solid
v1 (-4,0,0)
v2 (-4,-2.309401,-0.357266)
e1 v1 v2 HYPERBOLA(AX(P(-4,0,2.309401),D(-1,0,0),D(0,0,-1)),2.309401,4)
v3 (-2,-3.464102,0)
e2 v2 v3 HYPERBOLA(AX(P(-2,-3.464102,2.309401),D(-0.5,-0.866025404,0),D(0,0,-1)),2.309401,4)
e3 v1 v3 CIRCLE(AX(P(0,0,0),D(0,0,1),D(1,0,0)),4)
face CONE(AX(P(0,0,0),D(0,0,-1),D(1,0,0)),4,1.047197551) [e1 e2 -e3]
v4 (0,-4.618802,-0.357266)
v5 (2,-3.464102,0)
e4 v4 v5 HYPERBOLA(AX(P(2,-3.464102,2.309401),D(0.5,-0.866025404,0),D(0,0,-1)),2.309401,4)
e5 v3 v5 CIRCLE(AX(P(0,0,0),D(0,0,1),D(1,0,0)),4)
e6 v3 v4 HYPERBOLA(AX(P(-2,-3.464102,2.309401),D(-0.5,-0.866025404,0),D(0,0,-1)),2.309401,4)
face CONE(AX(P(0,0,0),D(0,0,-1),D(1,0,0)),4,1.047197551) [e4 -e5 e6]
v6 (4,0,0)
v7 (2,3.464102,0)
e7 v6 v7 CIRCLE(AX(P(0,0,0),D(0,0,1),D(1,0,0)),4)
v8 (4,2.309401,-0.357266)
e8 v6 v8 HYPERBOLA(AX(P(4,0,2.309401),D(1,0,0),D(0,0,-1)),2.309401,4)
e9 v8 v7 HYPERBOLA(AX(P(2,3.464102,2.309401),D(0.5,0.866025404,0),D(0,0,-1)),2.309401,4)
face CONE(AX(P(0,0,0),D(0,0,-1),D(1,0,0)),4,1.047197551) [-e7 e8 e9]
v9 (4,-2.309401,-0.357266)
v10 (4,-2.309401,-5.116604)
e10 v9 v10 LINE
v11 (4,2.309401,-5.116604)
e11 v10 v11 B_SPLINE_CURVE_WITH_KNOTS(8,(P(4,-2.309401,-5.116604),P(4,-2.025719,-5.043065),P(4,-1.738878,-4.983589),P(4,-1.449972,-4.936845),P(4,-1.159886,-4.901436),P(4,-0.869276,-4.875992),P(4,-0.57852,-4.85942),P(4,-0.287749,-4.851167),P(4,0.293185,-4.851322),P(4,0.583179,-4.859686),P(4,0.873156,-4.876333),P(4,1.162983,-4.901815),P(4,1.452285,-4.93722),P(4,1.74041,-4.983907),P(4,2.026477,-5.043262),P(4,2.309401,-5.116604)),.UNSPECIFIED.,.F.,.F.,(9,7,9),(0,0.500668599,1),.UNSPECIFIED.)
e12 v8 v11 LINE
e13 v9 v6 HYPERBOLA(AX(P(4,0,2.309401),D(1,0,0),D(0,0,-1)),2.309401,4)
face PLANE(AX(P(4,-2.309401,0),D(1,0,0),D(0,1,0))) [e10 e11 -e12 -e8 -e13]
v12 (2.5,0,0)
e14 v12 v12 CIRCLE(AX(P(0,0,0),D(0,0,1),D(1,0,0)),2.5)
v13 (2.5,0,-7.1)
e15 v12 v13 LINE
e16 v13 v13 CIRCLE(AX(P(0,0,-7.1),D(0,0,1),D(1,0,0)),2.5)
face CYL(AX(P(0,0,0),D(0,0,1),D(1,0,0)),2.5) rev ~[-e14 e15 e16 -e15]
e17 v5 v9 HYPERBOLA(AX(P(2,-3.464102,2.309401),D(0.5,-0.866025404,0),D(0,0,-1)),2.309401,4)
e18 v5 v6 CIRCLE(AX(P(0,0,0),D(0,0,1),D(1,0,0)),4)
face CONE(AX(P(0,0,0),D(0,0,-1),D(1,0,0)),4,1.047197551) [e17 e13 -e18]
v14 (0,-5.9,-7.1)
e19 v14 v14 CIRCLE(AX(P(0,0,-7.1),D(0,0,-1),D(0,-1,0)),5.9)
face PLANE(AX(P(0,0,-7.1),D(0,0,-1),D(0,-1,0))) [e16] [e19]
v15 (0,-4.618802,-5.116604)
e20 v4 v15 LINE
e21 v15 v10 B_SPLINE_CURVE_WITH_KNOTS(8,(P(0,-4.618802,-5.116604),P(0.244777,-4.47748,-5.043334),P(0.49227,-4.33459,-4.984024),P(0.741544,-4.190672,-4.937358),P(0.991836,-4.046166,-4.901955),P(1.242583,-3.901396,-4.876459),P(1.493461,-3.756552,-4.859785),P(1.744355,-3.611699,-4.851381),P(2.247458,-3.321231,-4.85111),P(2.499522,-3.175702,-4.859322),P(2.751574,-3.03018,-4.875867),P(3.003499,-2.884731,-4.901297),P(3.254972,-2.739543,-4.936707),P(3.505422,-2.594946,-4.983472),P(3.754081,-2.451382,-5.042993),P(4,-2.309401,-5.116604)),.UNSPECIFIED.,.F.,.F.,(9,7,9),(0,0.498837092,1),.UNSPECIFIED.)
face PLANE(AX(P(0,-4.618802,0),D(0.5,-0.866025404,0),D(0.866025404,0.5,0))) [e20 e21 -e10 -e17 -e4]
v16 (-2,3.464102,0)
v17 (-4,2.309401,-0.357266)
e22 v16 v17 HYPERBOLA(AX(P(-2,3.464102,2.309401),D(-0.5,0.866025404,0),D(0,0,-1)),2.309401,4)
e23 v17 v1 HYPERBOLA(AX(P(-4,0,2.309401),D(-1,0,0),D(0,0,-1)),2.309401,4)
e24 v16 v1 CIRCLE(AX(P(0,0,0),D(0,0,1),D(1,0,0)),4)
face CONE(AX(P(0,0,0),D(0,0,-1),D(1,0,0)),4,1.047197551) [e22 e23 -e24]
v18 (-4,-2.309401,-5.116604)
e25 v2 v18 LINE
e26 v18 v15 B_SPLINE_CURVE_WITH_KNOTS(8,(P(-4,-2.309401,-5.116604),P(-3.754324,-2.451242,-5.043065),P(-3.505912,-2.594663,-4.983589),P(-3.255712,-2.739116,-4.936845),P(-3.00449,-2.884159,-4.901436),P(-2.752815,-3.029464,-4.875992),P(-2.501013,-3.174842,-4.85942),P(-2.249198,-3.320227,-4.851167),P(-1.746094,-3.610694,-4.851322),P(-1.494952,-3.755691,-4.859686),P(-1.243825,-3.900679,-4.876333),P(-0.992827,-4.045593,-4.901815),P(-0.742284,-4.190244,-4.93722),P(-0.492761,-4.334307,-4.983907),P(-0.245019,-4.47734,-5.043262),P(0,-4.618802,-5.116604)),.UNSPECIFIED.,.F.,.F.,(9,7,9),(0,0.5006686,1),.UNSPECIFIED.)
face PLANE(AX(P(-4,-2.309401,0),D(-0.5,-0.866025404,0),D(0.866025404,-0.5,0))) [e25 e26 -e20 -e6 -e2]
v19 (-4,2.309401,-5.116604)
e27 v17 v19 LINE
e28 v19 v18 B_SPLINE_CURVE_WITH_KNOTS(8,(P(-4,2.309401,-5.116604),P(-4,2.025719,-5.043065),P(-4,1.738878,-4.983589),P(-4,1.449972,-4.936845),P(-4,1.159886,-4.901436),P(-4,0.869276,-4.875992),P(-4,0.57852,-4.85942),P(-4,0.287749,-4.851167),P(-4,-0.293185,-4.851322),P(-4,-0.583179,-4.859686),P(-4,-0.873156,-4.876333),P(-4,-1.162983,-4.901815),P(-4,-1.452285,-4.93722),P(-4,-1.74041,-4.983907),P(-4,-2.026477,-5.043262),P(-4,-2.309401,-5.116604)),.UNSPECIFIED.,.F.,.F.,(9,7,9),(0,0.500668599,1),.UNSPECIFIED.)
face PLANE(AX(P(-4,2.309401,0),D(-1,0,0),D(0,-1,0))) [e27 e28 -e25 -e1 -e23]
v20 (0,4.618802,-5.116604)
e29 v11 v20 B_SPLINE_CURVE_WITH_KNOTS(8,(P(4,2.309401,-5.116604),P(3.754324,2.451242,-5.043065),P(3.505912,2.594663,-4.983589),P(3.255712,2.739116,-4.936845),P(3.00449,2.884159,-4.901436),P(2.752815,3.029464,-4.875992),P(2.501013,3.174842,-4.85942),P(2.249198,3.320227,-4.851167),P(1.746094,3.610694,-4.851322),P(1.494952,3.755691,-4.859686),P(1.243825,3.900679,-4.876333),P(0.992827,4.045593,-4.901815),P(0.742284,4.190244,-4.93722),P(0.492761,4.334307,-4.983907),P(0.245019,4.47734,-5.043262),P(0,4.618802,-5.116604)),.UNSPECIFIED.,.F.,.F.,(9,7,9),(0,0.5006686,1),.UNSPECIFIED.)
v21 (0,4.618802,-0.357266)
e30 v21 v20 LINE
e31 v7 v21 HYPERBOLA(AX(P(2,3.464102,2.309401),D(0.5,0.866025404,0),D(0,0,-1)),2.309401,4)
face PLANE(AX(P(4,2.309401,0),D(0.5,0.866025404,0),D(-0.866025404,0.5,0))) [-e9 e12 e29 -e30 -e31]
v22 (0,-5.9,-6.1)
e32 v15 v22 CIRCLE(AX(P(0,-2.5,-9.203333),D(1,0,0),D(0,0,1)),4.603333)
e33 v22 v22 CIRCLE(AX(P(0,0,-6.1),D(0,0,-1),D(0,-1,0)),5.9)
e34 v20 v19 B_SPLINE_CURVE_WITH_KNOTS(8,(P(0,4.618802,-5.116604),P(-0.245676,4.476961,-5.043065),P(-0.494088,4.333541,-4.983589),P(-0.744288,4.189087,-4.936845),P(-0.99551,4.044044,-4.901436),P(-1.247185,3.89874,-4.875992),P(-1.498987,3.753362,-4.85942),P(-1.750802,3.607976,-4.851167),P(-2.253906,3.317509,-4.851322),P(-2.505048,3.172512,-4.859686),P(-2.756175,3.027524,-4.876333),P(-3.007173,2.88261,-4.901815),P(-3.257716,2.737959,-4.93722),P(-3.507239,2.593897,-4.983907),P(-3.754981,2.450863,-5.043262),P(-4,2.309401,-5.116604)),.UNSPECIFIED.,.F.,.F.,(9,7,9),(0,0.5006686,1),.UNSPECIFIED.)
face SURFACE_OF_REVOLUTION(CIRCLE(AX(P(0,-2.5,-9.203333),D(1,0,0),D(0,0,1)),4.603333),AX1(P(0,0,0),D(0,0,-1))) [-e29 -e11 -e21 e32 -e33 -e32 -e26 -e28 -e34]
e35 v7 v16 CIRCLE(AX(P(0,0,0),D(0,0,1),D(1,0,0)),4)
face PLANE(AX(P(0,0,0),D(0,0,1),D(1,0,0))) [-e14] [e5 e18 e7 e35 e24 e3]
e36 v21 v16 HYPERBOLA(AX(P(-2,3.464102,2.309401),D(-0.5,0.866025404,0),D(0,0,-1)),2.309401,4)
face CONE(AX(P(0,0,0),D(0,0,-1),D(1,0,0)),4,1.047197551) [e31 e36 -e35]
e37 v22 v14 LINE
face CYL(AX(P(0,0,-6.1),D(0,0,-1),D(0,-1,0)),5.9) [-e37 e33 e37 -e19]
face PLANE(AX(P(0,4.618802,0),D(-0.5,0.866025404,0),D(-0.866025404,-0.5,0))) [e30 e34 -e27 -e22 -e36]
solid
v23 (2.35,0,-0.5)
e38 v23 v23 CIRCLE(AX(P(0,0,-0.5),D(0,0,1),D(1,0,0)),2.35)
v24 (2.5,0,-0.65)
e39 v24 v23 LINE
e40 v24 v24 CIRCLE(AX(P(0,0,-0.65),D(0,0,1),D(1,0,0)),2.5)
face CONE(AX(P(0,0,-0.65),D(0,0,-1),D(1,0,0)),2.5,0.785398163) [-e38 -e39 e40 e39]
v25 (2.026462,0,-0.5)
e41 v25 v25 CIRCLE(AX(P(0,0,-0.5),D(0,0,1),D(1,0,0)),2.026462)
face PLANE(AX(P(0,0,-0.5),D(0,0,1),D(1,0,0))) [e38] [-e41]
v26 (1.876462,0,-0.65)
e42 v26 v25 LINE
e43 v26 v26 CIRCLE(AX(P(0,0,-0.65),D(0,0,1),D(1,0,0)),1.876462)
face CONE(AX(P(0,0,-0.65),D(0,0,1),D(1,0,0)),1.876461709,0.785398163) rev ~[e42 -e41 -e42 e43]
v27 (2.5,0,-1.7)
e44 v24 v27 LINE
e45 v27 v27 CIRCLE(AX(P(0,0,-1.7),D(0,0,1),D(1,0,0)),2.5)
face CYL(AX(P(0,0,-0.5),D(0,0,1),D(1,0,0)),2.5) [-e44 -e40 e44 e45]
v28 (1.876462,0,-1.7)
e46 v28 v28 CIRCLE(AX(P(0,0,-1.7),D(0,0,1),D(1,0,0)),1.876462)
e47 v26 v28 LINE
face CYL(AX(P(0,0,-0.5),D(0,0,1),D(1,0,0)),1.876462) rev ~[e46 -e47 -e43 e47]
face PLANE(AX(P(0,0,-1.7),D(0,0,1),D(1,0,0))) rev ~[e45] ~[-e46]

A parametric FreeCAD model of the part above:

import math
import FreeCAD as App
import Part
import Sketcher
from FreeCAD import Vector
Q = App.Units.Quantity


def edges_at(feature, points):
    """Names of the edges that pass closest to the given points."""
    edges = feature.Shape.Edges
    near = lambda p: min(range(len(edges)), key=lambda i: edges[i].distToShape(Part.Vertex(*p))[0])
    return sorted({f"Edge{near(p) + 1}" for p in points})


def faces_at(feature, points):
    """Names of the faces that lie closest to the given points."""
    faces = feature.Shape.Faces
    near = lambda p: min(range(len(faces)), key=lambda i: faces[i].distToShape(Part.Vertex(*p))[0])
    return sorted({f"Face{near(p) + 1}" for p in points})

doc = App.newDocument("Part")
body = doc.addObject("PartDesign::Body", "Body")

# Sketch on XY plane
sketch1 = body.newObject("Sketcher::SketchObject", "Sketch")
sketch1.AttachmentSupport = (doc.getObject("XY_Plane"), [""])
sketch1.MapMode = "FlatFace"
sketch1.addGeometry(Part.LineSegment(Vector(0, 4.6, 0), Vector(-4, 2.3, 0)), False)
sketch1.addGeometry(Part.LineSegment(Vector(-4, 2.3, 0), Vector(-4, -2.3, 0)), False)
sketch1.addGeometry(Part.LineSegment(Vector(-4, -2.3, 0), Vector(0, -4.6, 0)), False)
sketch1.addGeometry(Part.LineSegment(Vector(0, -4.6, 0), Vector(4, -2.3, 0)), False)
sketch1.addGeometry(Part.LineSegment(Vector(4, -2.3, 0), Vector(4, 2.3, 0)), False)
sketch1.addGeometry(Part.LineSegment(Vector(4, 2.3, 0), Vector(0, 4.6, 0)), False)
sketch1.addGeometry(Part.Circle(Vector(0, 0, 0), Vector(0, 0, 1), 2.5), False)
sketch1.addConstraint(Sketcher.Constraint("Coincident", 0, 2, 1, 1))
sketch1.addConstraint(Sketcher.Constraint("Coincident", 1, 2, 2, 1))
sketch1.addConstraint(Sketcher.Constraint("Coincident", 2, 2, 3, 1))
sketch1.addConstraint(Sketcher.Constraint("Coincident", 3, 2, 4, 1))
sketch1.addConstraint(Sketcher.Constraint("Coincident", 4, 2, 5, 1))
sketch1.addConstraint(Sketcher.Constraint("Coincident", 5, 2, 0, 1))
sketch1.addConstraint(Sketcher.Constraint("Vertical", 1))
sketch1.addConstraint(Sketcher.Constraint("Vertical", 4))
sketch1.addConstraint(Sketcher.Constraint("Coincident", 6, 3, -1, 1))
sketch1.addConstraint(Sketcher.Constraint("Symmetric", 0, 2, 3, 2, -1, 1))
sketch1.addConstraint(Sketcher.Constraint("Symmetric", 2, 2, 5, 2, -1, 1))
sketch1.addConstraint(Sketcher.Constraint("PointOnObject", 2, 2, -2))
sketch1.addConstraint(Sketcher.Constraint("Parallel", 2, 5))
sketch1.addConstraint(Sketcher.Constraint("Horizontal", 1, 2, 3, 2))
sketch1.addConstraint(Sketcher.Constraint("Diameter", 6, 5.0))
sketch1.addConstraint(Sketcher.Constraint("Angle", 0, Q("-150 deg")))
sketch1.addConstraint(Sketcher.Constraint("DistanceX", 0, 2, -1, 1, 4.0))
sketch1.addConstraint(Sketcher.Constraint("DistanceY", -1, 1, 0, 2, 2.309401))
pad1 = body.newObject("PartDesign::Pad", "Pad")
pad1.Profile = sketch1
pad1.Length = 7.1
pad1.Reversed = True
body2 = doc.addObject("PartDesign::Body", "Body001")

# Sketch on XY plane
sketch2 = body2.newObject("Sketcher::SketchObject", "Sketch001")
sketch2.AttachmentSupport = (doc.getObject("XY_Plane001"), [""])
sketch2.MapMode = "FlatFace"
sketch2.addGeometry(Part.LineSegment(Vector(-24.4, 25, 0), Vector(-24.4, -25, 0)), False)
sketch2.addGeometry(Part.LineSegment(Vector(-24.4, -25, 0), Vector(24.4, -25, 0)), False)
sketch2.addGeometry(Part.LineSegment(Vector(24.4, -25, 0), Vector(24.4, 25, 0)), False)
sketch2.addGeometry(Part.LineSegment(Vector(24.4, 25, 0), Vector(-24.4, 25, 0)), False)
sketch2.addGeometry(Part.Circle(Vector(0, 0, 0), Vector(0, 0, 1), 4), False)
sketch2.addConstraint(Sketcher.Constraint("Coincident", 0, 2, 1, 1))
sketch2.addConstraint(Sketcher.Constraint("Coincident", 1, 2, 2, 1))
sketch2.addConstraint(Sketcher.Constraint("Coincident", 2, 2, 3, 1))
sketch2.addConstraint(Sketcher.Constraint("Coincident", 3, 2, 0, 1))
sketch2.addConstraint(Sketcher.Constraint("Vertical", 0))
sketch2.addConstraint(Sketcher.Constraint("Horizontal", 1))
sketch2.addConstraint(Sketcher.Constraint("Vertical", 2))
sketch2.addConstraint(Sketcher.Constraint("Horizontal", 3))
sketch2.addConstraint(Sketcher.Constraint("Coincident", 4, 3, -1, 1))
sketch2.addConstraint(Sketcher.Constraint("Symmetric", 0, 2, 2, 2, -1, 1))
sketch2.addConstraint(Sketcher.Constraint("Diameter", 4, 8.0))
sketch2.addConstraint(Sketcher.Constraint("DistanceX", 1, 1, 1, 2, 48.74))
sketch2.addConstraint(Sketcher.Constraint("DistanceY", 0, 2, 0, 1, 49.978))
pad2 = body2.newObject("PartDesign::Pad", "Pad001")
pad2.Profile = sketch2
pad2.Length = 10.367141
pad2.Reversed = True
doc.recompute()

draft = body2.newObject("PartDesign::Draft", "Draft")
draft.Base = (pad2, faces_at(pad2, [
    (0, -24.989, -5.184),
    (24.37, 0, -5.184),
    (0, 24.989, -5.184),
    (-24.37, 0, -5.184),
    (-4, 0, -5.184),
]))
draft.NeutralPlane = (doc.getObject("XY_Plane001"), [""])
draft.Angle = 60
draft.Reversed = True
doc.recompute()

boolean = body.newObject("PartDesign::Boolean", "Boolean")
boolean.Type = "Cut"
boolean.addObjects([body2])

# Sketch on YZ plane
sketch3 = body.newObject("Sketcher::SketchObject", "Sketch002")
sketch3.AttachmentSupport = (doc.getObject("YZ_Plane"), [""])
sketch3.MapMode = "FlatFace"
sketch3.addGeometry(Part.LineSegment(Vector(2.5, -7.1, 0), Vector(5.9, -7.1, 0)), False)
sketch3.addGeometry(Part.LineSegment(Vector(5.9, -7.1, 0), Vector(5.9, -6.1, 0)), False)
sketch3.addGeometry(Part.ArcOfCircle(Part.Circle(Vector(2.5, -9.2, 0), Vector(0, 0, 1), 4.6), math.radians(42), math.radians(90)), False)
sketch3.addGeometry(Part.LineSegment(Vector(2.5, -4.6, 0), Vector(2.5, -7.1, 0)), False)
sketch3.addConstraint(Sketcher.Constraint("Coincident", 0, 2, 1, 1))
sketch3.addConstraint(Sketcher.Constraint("Coincident", 1, 2, 2, 1))
sketch3.addConstraint(Sketcher.Constraint("Coincident", 2, 2, 3, 1))
sketch3.addConstraint(Sketcher.Constraint("Coincident", 3, 2, 0, 1))
sketch3.addConstraint(Sketcher.Constraint("Horizontal", 0))
sketch3.addConstraint(Sketcher.Constraint("Vertical", 1))
sketch3.addConstraint(Sketcher.Constraint("Vertical", 3))
sketch3.addConstraint(Sketcher.Constraint("DistanceY", 1, 1, 1, 2, 1.0))
sketch3.addConstraint(Sketcher.Constraint("DistanceX", 0, 1, 0, 2, 3.4))
sketch3.addConstraint(Sketcher.Constraint("DistanceY", 3, 2, 3, 1, 2.5))
sketch3.addConstraint(Sketcher.Constraint("DistanceX", -1, 1, 2, 3, 2.5))
sketch3.addConstraint(Sketcher.Constraint("DistanceX", -1, 1, 0, 2, 5.9))
sketch3.addConstraint(Sketcher.Constraint("DistanceY", 0, 2, -1, 1, 7.1))
revolution = body.newObject("PartDesign::Revolution", "Revolution")
revolution.Profile = sketch3
revolution.ReferenceAxis = (sketch3, ["V_Axis"])
revolution.Angle = 360
body3 = doc.addObject("PartDesign::Body", "Body002")

# Sketch on XY plane
sketch4 = body3.newObject("Sketcher::SketchObject", "Sketch003")
sketch4.AttachmentSupport = (doc.getObject("XY_Plane002"), [""])
sketch4.MapMode = "FlatFace"
sketch4.AttachmentOffset = App.Placement(Vector(0, 0, -0.5), App.Rotation())
sketch4.addGeometry(Part.Circle(Vector(0, 0, 0), Vector(0, 0, 1), 2.5), False)
sketch4.addGeometry(Part.Circle(Vector(0, 0, 0), Vector(0, 0, 1), 1.9), False)
sketch4.addConstraint(Sketcher.Constraint("Coincident", 0, 3, -1, 1))
sketch4.addConstraint(Sketcher.Constraint("Coincident", 1, 3, -1, 1))
sketch4.addConstraint(Sketcher.Constraint("Diameter", 0, 5.0))
sketch4.addConstraint(Sketcher.Constraint("Diameter", 1, 3.752923))
pad3 = body3.newObject("PartDesign::Pad", "Pad002")
pad3.Profile = sketch4
pad3.Length = 1.2
pad3.Reversed = True
doc.recompute()

chamfer = body3.newObject("PartDesign::Chamfer", "Chamfer")
chamfer.Base = (pad3, edges_at(pad3, [(-2.5, 0, -0.5), (-1.876, 0, -0.5)]))
chamfer.Size = 0.15

doc.recompute()
